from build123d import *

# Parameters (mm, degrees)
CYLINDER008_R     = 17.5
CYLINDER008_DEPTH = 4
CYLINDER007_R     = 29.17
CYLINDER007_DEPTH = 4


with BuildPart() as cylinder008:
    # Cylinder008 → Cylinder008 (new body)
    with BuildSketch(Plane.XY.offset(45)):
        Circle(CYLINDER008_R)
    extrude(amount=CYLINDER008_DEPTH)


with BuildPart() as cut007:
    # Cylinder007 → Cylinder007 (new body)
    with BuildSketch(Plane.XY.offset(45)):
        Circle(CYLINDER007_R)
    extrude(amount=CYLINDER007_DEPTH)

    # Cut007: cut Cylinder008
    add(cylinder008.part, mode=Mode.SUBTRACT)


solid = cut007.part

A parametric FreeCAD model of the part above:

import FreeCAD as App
import Part
import Sketcher
Q = App.Units.Quantity

doc = App.newDocument("Part")
params = doc.addObject("Spreadsheet::Sheet", "Params")
for row, (alias, value) in enumerate([
    ("sketch1_diameter", "35 mm"),
    ("pad1_length", "4 mm"),
    ("sketch2_diameter", "58.34 mm"),
    ("pad2_length", "4 mm"),
], start=1):
    params.set(f"A{row}", alias)
    params.set(f"B{row}", "=" + value)
    params.setAlias(f"B{row}", alias)

body = doc.addObject("PartDesign::Body", "Body")

# Sketch on XY plane
sketch1 = doc.addObject("Sketcher::SketchObject", "Sketch")
body.addObject(sketch1)
sketch1.AttachmentSupport = (doc.XY_Plane, [""])
sketch1.MapMode = "FlatFace"
sketch1.AttachmentOffset = App.Placement(App.Vector(0, 0, 45), App.Rotation())
sketch1.addGeometry(Part.Circle(App.Vector(0, 0, 0), App.Vector(0, 0, 1), 18), False)
sketch1.addConstraint([
    Sketcher.Constraint("Coincident", 0, 3, -1, 1),
    Sketcher.Constraint("Diameter", 0, Q("35 mm")),
])
sketch1.setExpression("Constraints[1]", "Params.sketch1_diameter")
pad1 = doc.addObject("PartDesign::Pad", "Pad")
body.addObject(pad1)
pad1.Profile = sketch1
pad1.setExpression("Length", "Params.pad1_length")
body2 = doc.addObject("PartDesign::Body", "Body001")

# Sketch on XY plane
sketch2 = doc.addObject("Sketcher::SketchObject", "Sketch001")
body2.addObject(sketch2)
sketch2.AttachmentSupport = (doc.getObject("XY_Plane001"), [""])
sketch2.MapMode = "FlatFace"
sketch2.AttachmentOffset = App.Placement(App.Vector(0, 0, 45), App.Rotation())
sketch2.addGeometry(Part.Circle(App.Vector(0, 0, 0), App.Vector(0, 0, 1), 29), False)
sketch2.addConstraint([
    Sketcher.Constraint("Coincident", 0, 3, -1, 1),
    Sketcher.Constraint("Diameter", 0, Q("58.34 mm")),
])
sketch2.setExpression("Constraints[1]", "Params.sketch2_diameter")
pad2 = doc.addObject("PartDesign::Pad", "Pad001")
body2.addObject(pad2)
pad2.Profile = sketch2
pad2.setExpression("Length", "Params.pad2_length")
doc.recompute()

boolean = doc.addObject("PartDesign::Boolean", "Boolean")
body2.addObject(boolean)
boolean.Type = "Cut"
boolean.addObjects([body])

doc.recompute()
